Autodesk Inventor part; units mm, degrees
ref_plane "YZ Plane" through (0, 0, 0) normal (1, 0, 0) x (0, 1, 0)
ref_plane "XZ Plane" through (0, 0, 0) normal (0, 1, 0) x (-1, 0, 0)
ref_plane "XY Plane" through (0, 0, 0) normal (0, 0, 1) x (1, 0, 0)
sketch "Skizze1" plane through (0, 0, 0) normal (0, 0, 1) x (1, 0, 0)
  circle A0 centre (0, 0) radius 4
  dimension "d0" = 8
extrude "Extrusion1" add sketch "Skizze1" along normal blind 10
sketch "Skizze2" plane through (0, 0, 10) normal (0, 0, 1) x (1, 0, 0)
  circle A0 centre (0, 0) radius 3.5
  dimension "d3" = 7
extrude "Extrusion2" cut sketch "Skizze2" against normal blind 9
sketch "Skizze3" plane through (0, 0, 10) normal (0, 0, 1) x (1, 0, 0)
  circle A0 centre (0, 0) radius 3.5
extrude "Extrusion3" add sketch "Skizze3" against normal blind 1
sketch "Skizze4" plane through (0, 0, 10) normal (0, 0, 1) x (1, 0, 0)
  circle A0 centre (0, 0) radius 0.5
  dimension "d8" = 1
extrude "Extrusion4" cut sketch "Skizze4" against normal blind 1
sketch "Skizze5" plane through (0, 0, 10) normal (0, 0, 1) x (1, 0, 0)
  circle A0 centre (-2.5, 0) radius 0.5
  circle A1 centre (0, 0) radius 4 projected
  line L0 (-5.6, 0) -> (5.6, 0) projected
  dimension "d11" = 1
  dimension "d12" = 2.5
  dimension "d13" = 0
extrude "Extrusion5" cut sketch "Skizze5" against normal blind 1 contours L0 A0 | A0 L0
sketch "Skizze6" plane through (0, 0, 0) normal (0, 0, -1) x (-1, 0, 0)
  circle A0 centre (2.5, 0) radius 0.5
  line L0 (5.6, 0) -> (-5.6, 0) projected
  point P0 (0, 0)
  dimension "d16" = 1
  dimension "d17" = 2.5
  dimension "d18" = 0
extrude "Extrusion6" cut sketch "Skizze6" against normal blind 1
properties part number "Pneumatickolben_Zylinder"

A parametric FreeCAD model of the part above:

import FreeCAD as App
import Part
import Sketcher
Q = App.Units.Quantity

doc = App.newDocument("Part")
body = doc.addObject("PartDesign::Body", "Body")

# Sketch on XY plane
sketch1 = body.newObject("Sketcher::SketchObject", "Sketch")
sketch1.AttachmentSupport = (doc.getObject("XY_Plane"), [""])
sketch1.MapMode = "FlatFace"
sketch1.addGeometry(Part.Circle(App.Vector(0, 0, 0), App.Vector(0, 0, 1), 4), False)
sketch1.addConstraint(Sketcher.Constraint("Coincident", 0, 3, -1, 1))
sketch1.addConstraint(Sketcher.Constraint("Diameter", 0, Q("8 mm")))
pad1 = body.newObject("PartDesign::Pad", "Pad")
pad1.Profile = sketch1
pad1.Length = 10

# Sketch on XY plane
sketch2 = body.newObject("Sketcher::SketchObject", "Sketch001")
sketch2.AttachmentSupport = (doc.getObject("XY_Plane"), [""])
sketch2.MapMode = "FlatFace"
sketch2.AttachmentOffset = App.Placement(App.Vector(0, 0, 10), App.Rotation())
sketch2.addGeometry(Part.Circle(App.Vector(0, 0, 0), App.Vector(0, 0, 1), 3.5), False)
sketch2.addConstraint(Sketcher.Constraint("Coincident", 0, 3, -1, 1))
sketch2.addConstraint(Sketcher.Constraint("Diameter", 0, Q("7 mm")))
pocket1 = body.newObject("PartDesign::Pocket", "Pocket")
pocket1.Profile = sketch2
pocket1.Length = 9

# Sketch on XY plane
sketch3 = body.newObject("Sketcher::SketchObject", "Sketch002")
sketch3.AttachmentSupport = (doc.getObject("XY_Plane"), [""])
sketch3.MapMode = "FlatFace"
sketch3.AttachmentOffset = App.Placement(App.Vector(0, 0, 10), App.Rotation())
sketch3.addGeometry(Part.Circle(App.Vector(0, 0, 0), App.Vector(0, 0, 1), 3.5), False)
sketch3.addConstraint(Sketcher.Constraint("Coincident", 0, 3, -1, 1))
sketch3.addConstraint(Sketcher.Constraint("Diameter", 0, Q("7 mm")))
pad2 = body.newObject("PartDesign::Pad", "Pad001")
pad2.Profile = sketch3
pad2.Length = 1
pad2.Reversed = True

# Sketch on XY plane
sketch4 = body.newObject("Sketcher::SketchObject", "Sketch003")
sketch4.AttachmentSupport = (doc.getObject("XY_Plane"), [""])
sketch4.MapMode = "FlatFace"
sketch4.AttachmentOffset = App.Placement(App.Vector(0, 0, 10), App.Rotation())
sketch4.addGeometry(Part.Circle(App.Vector(0, 0, 0), App.Vector(0, 0, 1), 0.5), False)
sketch4.addConstraint(Sketcher.Constraint("Coincident", 0, 3, -1, 1))
sketch4.addConstraint(Sketcher.Constraint("Diameter", 0, Q("1 mm")))
pocket2 = body.newObject("PartDesign::Pocket", "Pocket001")
pocket2.Profile = sketch4
pocket2.Length = 1

# Sketch on XY plane
sketch5 = body.newObject("Sketcher::SketchObject", "Sketch004")
sketch5.AttachmentSupport = (doc.getObject("XY_Plane"), [""])
sketch5.MapMode = "FlatFace"
sketch5.AttachmentOffset = App.Placement(App.Vector(0, 0, 10), App.Rotation())
sketch5.addGeometry(Part.Circle(App.Vector(-2.5, 0, 0), App.Vector(0, 0, 1), 0.5), False)
sketch5.addConstraint(Sketcher.Constraint("PointOnObject", 0, 3, -1))
sketch5.addConstraint(Sketcher.Constraint("Diameter", 0, Q("1 mm")))
sketch5.addConstraint(Sketcher.Constraint("DistanceX", 0, 3, -1, 1, Q("2.5 mm")))
pocket3 = body.newObject("PartDesign::Pocket", "Pocket002")
pocket3.Profile = sketch5
pocket3.Length = 1

# Sketch on XY plane
sketch6 = body.newObject("Sketcher::SketchObject", "Sketch005")
sketch6.AttachmentSupport = (doc.getObject("XY_Plane"), [""])
sketch6.MapMode = "FlatFace"
sketch6.addGeometry(Part.Circle(App.Vector(-2.5, 0, 0), App.Vector(0, 0, 1), 0.5), False)
sketch6.addConstraint(Sketcher.Constraint("PointOnObject", 0, 3, -1))
sketch6.addConstraint(Sketcher.Constraint("Diameter", 0, Q("1 mm")))
sketch6.addConstraint(Sketcher.Constraint("DistanceX", 0, 3, -1, 1, Q("2.5 mm")))
pocket4 = body.newObject("PartDesign::Pocket", "Pocket003")
pocket4.Profile = sketch6
pocket4.Length = 1
pocket4.Reversed = True

doc.recompute()
